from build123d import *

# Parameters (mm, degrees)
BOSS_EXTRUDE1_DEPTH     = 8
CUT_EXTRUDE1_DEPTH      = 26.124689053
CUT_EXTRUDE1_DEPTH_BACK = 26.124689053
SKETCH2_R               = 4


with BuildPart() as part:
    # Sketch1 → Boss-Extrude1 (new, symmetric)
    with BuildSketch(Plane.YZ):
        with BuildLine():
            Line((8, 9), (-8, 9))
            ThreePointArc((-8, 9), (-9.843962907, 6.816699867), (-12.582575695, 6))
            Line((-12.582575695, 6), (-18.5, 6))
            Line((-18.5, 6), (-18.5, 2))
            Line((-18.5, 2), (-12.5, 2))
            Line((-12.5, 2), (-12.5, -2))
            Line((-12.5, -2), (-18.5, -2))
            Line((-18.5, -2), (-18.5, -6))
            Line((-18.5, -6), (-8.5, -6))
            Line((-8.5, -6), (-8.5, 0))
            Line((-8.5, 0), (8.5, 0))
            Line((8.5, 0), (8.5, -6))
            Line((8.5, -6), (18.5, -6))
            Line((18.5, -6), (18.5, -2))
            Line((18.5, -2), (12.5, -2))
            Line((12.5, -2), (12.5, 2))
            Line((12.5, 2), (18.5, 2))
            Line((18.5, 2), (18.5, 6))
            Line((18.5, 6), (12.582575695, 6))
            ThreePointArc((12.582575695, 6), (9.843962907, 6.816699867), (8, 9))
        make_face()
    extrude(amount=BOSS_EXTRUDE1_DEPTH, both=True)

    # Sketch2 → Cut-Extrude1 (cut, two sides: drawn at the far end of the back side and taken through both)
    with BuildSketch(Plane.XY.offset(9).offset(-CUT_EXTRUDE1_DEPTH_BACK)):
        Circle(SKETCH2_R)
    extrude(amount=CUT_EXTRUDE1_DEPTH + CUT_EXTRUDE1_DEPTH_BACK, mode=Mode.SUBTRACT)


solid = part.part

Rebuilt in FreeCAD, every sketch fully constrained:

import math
import FreeCAD as App
import Part
import Sketcher

V = App.Vector
Q = App.Units.Quantity

doc = App.newDocument("Part")
params = doc.addObject("Spreadsheet::Sheet", "Params")
for row, (alias, value) in enumerate([
    ("sketch1_radius", "5 mm"),
    ("sketch1_width", "16 mm"),
    ("sketch1_width2", "6 mm"),
    ("sketch1_width3", "10 mm"),
    ("sketch1_width4", "17 mm"),
    ("pad1_length", "16 mm"),
    ("sketch2_diameter", "8 mm"),
], start=1):
    params.set(f"A{row}", alias)
    params.set(f"B{row}", "=" + value)
    params.setAlias(f"B{row}", alias)

body = doc.addObject("PartDesign::Body", "Body")

# Sketch on YZ plane
sketch1 = body.newObject("Sketcher::SketchObject", "Sketch")
sketch1.AttachmentSupport = (doc.getObject("YZ_Plane"), [""])
sketch1.MapMode = "FlatFace"
sketch1.addGeometry([
    Part.LineSegment(V(8, 9, 0), V(-8, 9, 0)),  # 0
    Part.ArcOfCircle(Part.Circle(V(-12.582576, 11, 0), V(0, 0, 1), 5), math.radians(-90), math.radians(-23.578178)),  # 1
    Part.LineSegment(V(-12.582576, 6, 0), V(-18.5, 6, 0)),  # 2
    Part.LineSegment(V(-18.5, 6, 0), V(-18.5, 2, 0)),  # 3
    Part.LineSegment(V(-18.5, 2, 0), V(-12.5, 2, 0)),  # 4
    Part.LineSegment(V(-12.5, 2, 0), V(-12.5, -2, 0)),  # 5
    Part.LineSegment(V(-12.5, -2, 0), V(-18.5, -2, 0)),  # 6
    Part.LineSegment(V(-18.5, -2, 0), V(-18.5, -6, 0)),  # 7
    Part.LineSegment(V(-18.5, -6, 0), V(-8.5, -6, 0)),  # 8
    Part.LineSegment(V(-8.5, -6, 0), V(-8.5, 0, 0)),  # 9
    Part.LineSegment(V(-8.5, 0, 0), V(8.5, 0, 0)),  # 10
    Part.LineSegment(V(8.5, 0, 0), V(8.5, -6, 0)),  # 11
    Part.LineSegment(V(8.5, -6, 0), V(18.5, -6, 0)),  # 12
    Part.LineSegment(V(18.5, -6, 0), V(18.5, -2, 0)),  # 13
    Part.LineSegment(V(18.5, -2, 0), V(12.5, -2, 0)),  # 14
    Part.LineSegment(V(12.5, -2, 0), V(12.5, 2, 0)),  # 15
    Part.LineSegment(V(12.5, 2, 0), V(18.5, 2, 0)),  # 16
    Part.LineSegment(V(18.5, 2, 0), V(18.5, 6, 0)),  # 17
    Part.LineSegment(V(18.5, 6, 0), V(12.582576, 6, 0)),  # 18
    Part.ArcOfCircle(Part.Circle(V(12.582576, 11, 0), V(0, 0, 1), 5), math.radians(-156.421822), math.radians(-90)),  # 19
], False)
sketch1.addConstraint([
    Sketcher.Constraint("Coincident", 0, 2, 1, 2),
    Sketcher.Constraint("Tangent", 1, 1, 2, 1),
    Sketcher.Constraint("Coincident", 2, 2, 3, 1),
    Sketcher.Constraint("Coincident", 3, 2, 4, 1),
    Sketcher.Constraint("Coincident", 4, 2, 5, 1),
    Sketcher.Constraint("Coincident", 5, 2, 6, 1),
    Sketcher.Constraint("Coincident", 6, 2, 7, 1),
    Sketcher.Constraint("Coincident", 7, 2, 8, 1),
    Sketcher.Constraint("Coincident", 8, 2, 9, 1),
    Sketcher.Constraint("Coincident", 9, 2, 10, 1),
    Sketcher.Constraint("Coincident", 10, 2, 11, 1),
    Sketcher.Constraint("Coincident", 11, 2, 12, 1),
    Sketcher.Constraint("Coincident", 12, 2, 13, 1),
    Sketcher.Constraint("Coincident", 13, 2, 14, 1),
    Sketcher.Constraint("Coincident", 14, 2, 15, 1),
    Sketcher.Constraint("Coincident", 15, 2, 16, 1),
    Sketcher.Constraint("Coincident", 16, 2, 17, 1),
    Sketcher.Constraint("Coincident", 17, 2, 18, 1),
    Sketcher.Constraint("Tangent", 18, 2, 19, 2),
    Sketcher.Constraint("Coincident", 19, 1, 0, 1),
    Sketcher.Constraint("Horizontal", 0),
    Sketcher.Constraint("Horizontal", 2),
    Sketcher.Constraint("Vertical", 3),
    Sketcher.Constraint("Horizontal", 4),
    Sketcher.Constraint("Vertical", 5),
    Sketcher.Constraint("Horizontal", 6),
    Sketcher.Constraint("Vertical", 7),
    Sketcher.Constraint("Horizontal", 8),
    Sketcher.Constraint("Vertical", 9),
    Sketcher.Constraint("Horizontal", 10),
    Sketcher.Constraint("Vertical", 11),
    Sketcher.Constraint("Horizontal", 12),
    Sketcher.Constraint("Vertical", 13),
    Sketcher.Constraint("Horizontal", 14),
    Sketcher.Constraint("Vertical", 15),
    Sketcher.Constraint("Horizontal", 16),
    Sketcher.Constraint("Vertical", 17),
    Sketcher.Constraint("Horizontal", 18),
    Sketcher.Constraint("Equal", 1, 19),
    Sketcher.Constraint("Symmetric", 9, 2, 10, 2, -1, 1),
    Sketcher.Constraint("Symmetric", 2, 2, 12, 2, -1, 1),
    Sketcher.Constraint("Symmetric", 4, 2, 14, 2, -1, 1),
    Sketcher.Constraint("Symmetric", 6, 2, 16, 2, -1, 1),
    Sketcher.Constraint("Symmetric", 1, 3, 19, 3, -2),
    Sketcher.Constraint("Symmetric", 7, 2, 12, 2, -2),
    Sketcher.Constraint("Horizontal", 6, 2, 13, 2),
    Sketcher.Constraint("Equal", 3, 5),
    Sketcher.Constraint("Equal", 16, 9),
    Sketcher.Constraint("Radius", 1, Q("5 mm")),
    Sketcher.Constraint("DistanceX", 0, 2, 0, 1, Q("16 mm")),
    Sketcher.Constraint("DistanceX", 4, 1, 4, 2, Q("6 mm")),
    Sketcher.Constraint("DistanceX", 8, 1, 8, 2, Q("10 mm")),
    Sketcher.Constraint("DistanceX", 10, 1, 10, 2, Q("17 mm")),
    Sketcher.Constraint("DistanceY", -1, 1, 0, 2, Q("9 mm")),
])
sketch1.setExpression("Constraints[48]", "Params.sketch1_radius")
sketch1.setExpression("Constraints[49]", "Params.sketch1_width")
sketch1.setExpression("Constraints[50]", "Params.sketch1_width2")
sketch1.setExpression("Constraints[51]", "Params.sketch1_width3")
sketch1.setExpression("Constraints[52]", "Params.sketch1_width4")
pad1 = body.newObject("PartDesign::Pad", "Pad")
pad1.Profile = sketch1
pad1.setExpression("Length", "Params.pad1_length")
pad1.Midplane = True

# Sketch on XY plane
sketch2 = body.newObject("Sketcher::SketchObject", "Sketch001")
sketch2.AttachmentSupport = (doc.getObject("XY_Plane"), [""])
sketch2.MapMode = "FlatFace"
sketch2.AttachmentOffset = App.Placement(V(0, 0, 9), App.Rotation())
sketch2.addGeometry(Part.Circle(V(0, 0, 0), V(0, 0, 1), 4), False)
sketch2.addConstraint([
    Sketcher.Constraint("Coincident", 0, 3, -1, 1),
    Sketcher.Constraint("Diameter", 0, Q("8 mm")),
])
sketch2.setExpression("Constraints[1]", "Params.sketch2_diameter")
pocket1 = body.newObject("PartDesign::Pocket", "Pocket")
pocket1.Profile = sketch2
pocket1.Type = "ThroughAll"
pocket1.Midplane = True

doc.recompute()
